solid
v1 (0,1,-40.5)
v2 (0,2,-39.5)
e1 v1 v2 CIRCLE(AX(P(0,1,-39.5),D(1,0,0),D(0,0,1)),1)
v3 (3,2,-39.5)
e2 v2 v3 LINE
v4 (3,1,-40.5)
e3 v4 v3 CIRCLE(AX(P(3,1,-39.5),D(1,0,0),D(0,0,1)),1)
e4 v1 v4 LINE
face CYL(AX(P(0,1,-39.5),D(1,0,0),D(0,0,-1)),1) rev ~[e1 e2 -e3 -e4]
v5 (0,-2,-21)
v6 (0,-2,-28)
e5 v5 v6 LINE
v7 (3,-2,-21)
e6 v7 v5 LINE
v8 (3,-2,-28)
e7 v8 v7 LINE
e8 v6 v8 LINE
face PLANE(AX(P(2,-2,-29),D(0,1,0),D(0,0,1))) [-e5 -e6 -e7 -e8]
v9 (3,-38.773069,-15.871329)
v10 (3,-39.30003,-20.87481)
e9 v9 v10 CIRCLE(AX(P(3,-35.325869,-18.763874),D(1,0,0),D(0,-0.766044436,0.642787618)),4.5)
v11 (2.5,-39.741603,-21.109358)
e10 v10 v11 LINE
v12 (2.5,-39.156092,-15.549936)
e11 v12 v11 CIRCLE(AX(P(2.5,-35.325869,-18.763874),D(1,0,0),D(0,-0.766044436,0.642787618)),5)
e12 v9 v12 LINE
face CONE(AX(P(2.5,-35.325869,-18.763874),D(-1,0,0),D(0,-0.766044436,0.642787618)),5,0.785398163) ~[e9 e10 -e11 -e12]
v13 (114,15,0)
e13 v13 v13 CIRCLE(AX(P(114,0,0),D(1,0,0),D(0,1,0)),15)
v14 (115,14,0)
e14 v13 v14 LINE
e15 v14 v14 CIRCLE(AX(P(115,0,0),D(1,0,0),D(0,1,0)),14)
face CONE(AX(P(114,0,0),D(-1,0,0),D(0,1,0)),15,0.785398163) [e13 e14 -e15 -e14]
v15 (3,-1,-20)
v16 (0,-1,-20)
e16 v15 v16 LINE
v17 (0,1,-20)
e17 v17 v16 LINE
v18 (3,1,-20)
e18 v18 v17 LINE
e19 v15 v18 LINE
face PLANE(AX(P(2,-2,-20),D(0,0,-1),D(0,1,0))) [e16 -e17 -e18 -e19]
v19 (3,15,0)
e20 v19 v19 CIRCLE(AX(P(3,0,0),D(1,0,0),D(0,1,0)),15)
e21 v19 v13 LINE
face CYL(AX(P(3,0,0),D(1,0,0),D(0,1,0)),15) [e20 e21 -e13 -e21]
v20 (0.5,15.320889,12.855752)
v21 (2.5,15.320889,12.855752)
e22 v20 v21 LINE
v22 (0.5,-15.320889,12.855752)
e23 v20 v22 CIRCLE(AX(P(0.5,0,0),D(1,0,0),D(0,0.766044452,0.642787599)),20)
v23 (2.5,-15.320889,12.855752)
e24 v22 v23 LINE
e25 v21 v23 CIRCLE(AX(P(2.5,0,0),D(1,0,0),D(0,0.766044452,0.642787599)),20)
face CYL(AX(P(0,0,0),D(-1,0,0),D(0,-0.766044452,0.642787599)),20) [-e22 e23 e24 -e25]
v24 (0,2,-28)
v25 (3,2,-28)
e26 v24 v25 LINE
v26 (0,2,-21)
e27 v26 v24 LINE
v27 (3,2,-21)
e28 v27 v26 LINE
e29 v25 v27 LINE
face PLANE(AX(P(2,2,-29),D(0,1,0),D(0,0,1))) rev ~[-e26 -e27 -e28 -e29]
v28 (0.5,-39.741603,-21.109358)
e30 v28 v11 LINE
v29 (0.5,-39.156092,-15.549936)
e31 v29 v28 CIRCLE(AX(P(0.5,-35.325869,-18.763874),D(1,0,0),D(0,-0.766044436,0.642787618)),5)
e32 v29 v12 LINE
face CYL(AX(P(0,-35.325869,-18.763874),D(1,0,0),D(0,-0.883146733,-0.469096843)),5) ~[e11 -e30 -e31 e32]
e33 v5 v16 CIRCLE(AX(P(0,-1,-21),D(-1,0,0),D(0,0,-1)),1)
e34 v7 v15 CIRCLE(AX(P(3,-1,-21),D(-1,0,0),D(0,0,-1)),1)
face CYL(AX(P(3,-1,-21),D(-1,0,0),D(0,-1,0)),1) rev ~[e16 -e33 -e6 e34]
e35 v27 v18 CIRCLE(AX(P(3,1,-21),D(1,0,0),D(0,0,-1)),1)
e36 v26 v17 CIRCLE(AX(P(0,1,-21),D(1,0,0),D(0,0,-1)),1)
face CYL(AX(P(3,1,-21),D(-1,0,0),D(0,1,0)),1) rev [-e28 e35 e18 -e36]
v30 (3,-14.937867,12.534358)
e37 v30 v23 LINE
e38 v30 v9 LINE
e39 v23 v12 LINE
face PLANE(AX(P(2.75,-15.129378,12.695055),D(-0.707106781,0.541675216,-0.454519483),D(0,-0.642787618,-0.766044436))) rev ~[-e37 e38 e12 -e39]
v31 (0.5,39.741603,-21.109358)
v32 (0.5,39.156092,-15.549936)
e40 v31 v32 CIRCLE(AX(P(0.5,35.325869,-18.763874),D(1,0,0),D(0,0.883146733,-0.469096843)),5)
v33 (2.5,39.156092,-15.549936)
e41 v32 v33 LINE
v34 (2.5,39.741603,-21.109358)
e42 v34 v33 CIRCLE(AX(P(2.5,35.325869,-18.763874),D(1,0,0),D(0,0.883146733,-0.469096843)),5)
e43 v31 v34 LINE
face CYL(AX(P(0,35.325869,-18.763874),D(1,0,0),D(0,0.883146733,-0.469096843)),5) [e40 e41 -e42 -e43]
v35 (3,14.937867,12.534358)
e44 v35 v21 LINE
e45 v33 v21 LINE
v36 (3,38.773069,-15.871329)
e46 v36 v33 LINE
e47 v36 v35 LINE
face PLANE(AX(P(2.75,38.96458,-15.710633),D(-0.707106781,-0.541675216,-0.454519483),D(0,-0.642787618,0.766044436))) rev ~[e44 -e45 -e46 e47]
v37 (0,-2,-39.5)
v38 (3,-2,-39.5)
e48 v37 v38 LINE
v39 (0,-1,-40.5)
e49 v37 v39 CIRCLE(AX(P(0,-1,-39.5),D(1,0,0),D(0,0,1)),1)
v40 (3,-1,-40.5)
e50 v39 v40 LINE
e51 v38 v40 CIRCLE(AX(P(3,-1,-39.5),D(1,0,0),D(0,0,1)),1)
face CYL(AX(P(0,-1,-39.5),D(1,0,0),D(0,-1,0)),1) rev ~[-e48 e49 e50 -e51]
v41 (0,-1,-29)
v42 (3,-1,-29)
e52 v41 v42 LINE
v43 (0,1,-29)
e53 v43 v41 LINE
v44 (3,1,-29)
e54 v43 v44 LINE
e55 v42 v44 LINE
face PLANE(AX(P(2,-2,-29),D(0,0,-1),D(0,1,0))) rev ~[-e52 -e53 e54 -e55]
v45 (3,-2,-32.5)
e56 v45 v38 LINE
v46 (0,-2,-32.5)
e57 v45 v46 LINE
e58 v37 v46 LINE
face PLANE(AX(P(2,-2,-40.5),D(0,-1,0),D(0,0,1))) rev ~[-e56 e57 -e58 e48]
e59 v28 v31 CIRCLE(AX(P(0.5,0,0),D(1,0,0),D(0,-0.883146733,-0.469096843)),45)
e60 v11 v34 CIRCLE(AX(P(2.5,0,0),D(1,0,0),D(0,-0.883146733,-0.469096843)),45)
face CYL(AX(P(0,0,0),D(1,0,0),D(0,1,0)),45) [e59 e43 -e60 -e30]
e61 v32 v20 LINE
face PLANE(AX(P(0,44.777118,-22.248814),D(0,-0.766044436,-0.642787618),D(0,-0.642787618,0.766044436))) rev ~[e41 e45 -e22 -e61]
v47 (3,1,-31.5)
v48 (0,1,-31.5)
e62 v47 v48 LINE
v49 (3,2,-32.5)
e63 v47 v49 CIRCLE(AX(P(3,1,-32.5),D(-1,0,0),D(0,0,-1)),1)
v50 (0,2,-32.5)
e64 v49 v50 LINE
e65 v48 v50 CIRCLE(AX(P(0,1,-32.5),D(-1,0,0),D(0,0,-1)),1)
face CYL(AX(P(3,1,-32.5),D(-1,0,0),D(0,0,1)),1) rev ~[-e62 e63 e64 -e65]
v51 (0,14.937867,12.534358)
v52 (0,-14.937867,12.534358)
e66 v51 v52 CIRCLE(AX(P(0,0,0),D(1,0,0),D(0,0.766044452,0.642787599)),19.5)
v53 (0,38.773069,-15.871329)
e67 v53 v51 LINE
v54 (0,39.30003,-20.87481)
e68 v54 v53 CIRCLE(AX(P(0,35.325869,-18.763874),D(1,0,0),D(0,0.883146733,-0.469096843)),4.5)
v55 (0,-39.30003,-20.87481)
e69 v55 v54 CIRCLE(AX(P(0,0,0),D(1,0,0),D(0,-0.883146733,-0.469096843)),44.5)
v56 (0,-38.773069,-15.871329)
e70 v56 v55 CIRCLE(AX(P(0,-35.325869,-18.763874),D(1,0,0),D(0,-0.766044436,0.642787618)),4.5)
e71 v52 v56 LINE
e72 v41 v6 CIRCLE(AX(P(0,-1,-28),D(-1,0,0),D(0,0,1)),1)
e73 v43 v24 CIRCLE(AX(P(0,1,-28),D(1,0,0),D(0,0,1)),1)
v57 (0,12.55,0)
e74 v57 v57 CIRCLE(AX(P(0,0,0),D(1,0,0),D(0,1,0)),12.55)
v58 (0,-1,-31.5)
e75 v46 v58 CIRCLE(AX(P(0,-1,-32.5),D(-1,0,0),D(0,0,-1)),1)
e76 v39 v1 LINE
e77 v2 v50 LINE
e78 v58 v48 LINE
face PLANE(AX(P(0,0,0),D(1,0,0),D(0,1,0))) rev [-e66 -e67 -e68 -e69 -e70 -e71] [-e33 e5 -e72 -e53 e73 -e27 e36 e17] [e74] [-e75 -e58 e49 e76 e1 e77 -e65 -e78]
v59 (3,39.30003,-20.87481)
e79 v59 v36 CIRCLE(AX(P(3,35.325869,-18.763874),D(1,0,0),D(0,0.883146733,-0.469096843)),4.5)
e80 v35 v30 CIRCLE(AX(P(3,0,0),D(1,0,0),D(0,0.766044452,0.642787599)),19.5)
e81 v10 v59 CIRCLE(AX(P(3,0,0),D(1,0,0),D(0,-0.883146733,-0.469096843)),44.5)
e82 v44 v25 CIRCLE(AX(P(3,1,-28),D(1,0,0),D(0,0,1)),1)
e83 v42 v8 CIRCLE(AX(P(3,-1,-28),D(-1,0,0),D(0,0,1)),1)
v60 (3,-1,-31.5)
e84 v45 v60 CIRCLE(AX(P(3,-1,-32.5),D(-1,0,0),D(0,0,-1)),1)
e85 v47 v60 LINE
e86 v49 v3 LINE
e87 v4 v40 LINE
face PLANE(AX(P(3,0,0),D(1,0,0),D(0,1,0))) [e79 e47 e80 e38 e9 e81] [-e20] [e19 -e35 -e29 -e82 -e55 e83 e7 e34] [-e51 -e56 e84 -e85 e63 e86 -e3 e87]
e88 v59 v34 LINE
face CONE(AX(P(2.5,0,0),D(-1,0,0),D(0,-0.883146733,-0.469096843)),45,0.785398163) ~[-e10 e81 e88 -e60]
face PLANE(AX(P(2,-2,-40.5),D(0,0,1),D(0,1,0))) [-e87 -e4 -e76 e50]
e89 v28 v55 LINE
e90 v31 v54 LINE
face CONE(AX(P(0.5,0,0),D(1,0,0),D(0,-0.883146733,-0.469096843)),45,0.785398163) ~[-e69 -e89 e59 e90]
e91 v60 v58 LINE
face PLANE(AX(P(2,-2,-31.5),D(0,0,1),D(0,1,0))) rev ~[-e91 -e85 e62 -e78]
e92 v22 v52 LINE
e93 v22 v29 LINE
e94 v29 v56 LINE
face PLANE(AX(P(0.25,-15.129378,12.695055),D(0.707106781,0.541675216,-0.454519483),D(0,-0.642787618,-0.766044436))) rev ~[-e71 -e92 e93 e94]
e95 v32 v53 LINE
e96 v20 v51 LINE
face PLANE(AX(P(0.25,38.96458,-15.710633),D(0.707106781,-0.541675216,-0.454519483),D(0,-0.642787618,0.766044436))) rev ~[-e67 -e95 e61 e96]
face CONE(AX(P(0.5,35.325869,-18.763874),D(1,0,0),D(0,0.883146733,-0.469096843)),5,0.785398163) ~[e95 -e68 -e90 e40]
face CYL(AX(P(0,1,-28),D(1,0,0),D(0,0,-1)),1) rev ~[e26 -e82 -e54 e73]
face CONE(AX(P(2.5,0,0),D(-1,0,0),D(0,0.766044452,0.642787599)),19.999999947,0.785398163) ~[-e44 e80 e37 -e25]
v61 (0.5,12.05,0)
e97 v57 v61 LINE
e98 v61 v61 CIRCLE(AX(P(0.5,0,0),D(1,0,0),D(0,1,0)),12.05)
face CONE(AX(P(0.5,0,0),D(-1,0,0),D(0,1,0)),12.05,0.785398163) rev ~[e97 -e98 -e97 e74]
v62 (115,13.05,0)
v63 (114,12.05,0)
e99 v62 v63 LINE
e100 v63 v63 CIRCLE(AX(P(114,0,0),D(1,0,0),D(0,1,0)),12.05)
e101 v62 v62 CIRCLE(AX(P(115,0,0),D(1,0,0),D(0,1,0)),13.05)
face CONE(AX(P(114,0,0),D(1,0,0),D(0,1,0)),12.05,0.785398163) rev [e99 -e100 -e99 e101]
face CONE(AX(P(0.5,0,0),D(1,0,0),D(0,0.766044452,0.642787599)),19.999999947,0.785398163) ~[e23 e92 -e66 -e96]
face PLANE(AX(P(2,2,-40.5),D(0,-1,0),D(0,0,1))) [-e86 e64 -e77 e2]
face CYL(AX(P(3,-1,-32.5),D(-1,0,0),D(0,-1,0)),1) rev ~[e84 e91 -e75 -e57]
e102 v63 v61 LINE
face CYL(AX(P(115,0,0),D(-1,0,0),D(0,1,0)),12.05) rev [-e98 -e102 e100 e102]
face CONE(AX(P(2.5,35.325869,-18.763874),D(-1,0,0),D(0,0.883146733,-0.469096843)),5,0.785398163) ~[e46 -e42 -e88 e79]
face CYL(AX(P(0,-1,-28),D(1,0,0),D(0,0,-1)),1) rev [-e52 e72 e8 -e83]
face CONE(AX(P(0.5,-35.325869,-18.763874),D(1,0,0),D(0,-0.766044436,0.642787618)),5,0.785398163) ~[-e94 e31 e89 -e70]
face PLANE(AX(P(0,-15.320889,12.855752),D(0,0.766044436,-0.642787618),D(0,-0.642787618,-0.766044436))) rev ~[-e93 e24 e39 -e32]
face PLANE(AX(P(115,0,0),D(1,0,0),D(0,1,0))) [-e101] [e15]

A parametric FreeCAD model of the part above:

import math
import FreeCAD as App
import Part
import Sketcher
Q = App.Units.Quantity


def edges_at(feature, points):
    """Names of the edges that pass closest to the given points."""
    edges = feature.Shape.Edges
    near = lambda p: min(range(len(edges)), key=lambda i: edges[i].distToShape(Part.Vertex(*p))[0])
    return sorted({f"Edge{near(p) + 1}" for p in points})

doc = App.newDocument("Part")
params = doc.addObject("Spreadsheet::Sheet", "Params")
for row, (alias, value) in enumerate([
    ("sketch1_width", "3 mm"),
    ("sketch1_width2", "115 mm"),
    ("sketch1_height", "30 mm"),
    ("sketch1_height2", "32.95 mm"),
    ("revolution_angle", "360 deg"),
    ("sketch2_width", "4 mm"),
    ("sketch2_height", "9 mm"),
    ("pocket1_length", "6 mm"),
    ("sketch3_radius", "50 mm"),
    ("sketch3_radius2", "20 mm"),
    ("pocket2_length", "5 mm"),
    ("fillet_radius", "5 mm"),
    ("fillet2_radius", "1 mm"),
    ("chamfer_size", "0.5 mm"),
    ("chamfer2_size", "1 mm"),
], start=1):
    params.set(f"A{row}", alias)
    params.set(f"B{row}", "=" + value)
    params.setAlias(f"B{row}", alias)

body = doc.addObject("PartDesign::Body", "Body")

# Sketch on XY plane
sketch1 = body.newObject("Sketcher::SketchObject", "Sketch")
sketch1.AttachmentSupport = (doc.getObject("XY_Plane"), [""])
sketch1.MapMode = "FlatFace"
sketch1.addGeometry([
    Part.LineSegment(App.Vector(3, 45, 0), App.Vector(0, 45, 0)),  # 0
    Part.LineSegment(App.Vector(0, 45, 0), App.Vector(0, 12.05, 0)),  # 1
    Part.LineSegment(App.Vector(0, 12.05, 0), App.Vector(115, 12.05, 0)),  # 2
    Part.LineSegment(App.Vector(115, 12.05, 0), App.Vector(115, 15, 0)),  # 3
    Part.LineSegment(App.Vector(115, 15, 0), App.Vector(3, 15, 0)),  # 4
    Part.LineSegment(App.Vector(3, 15, 0), App.Vector(3, 45, 0)),  # 5
], False)
sketch1.addConstraint([
    Sketcher.Constraint("Coincident", 0, 2, 1, 1),
    Sketcher.Constraint("Coincident", 1, 2, 2, 1),
    Sketcher.Constraint("Coincident", 2, 2, 3, 1),
    Sketcher.Constraint("Coincident", 3, 2, 4, 1),
    Sketcher.Constraint("Coincident", 4, 2, 5, 1),
    Sketcher.Constraint("Coincident", 5, 2, 0, 1),
    Sketcher.Constraint("Horizontal", 0),
    Sketcher.Constraint("Vertical", 1),
    Sketcher.Constraint("Horizontal", 2),
    Sketcher.Constraint("Vertical", 3),
    Sketcher.Constraint("Horizontal", 4),
    Sketcher.Constraint("Vertical", 5),
    Sketcher.Constraint("PointOnObject", 0, 2, -2),
    Sketcher.Constraint("DistanceX", 0, 2, 0, 1, 3.0),
    Sketcher.Constraint("DistanceX", 2, 1, 2, 2, 115.0),
    Sketcher.Constraint("DistanceY", 5, 1, 5, 2, 30.0),
    Sketcher.Constraint("DistanceY", -1, 1, 0, 2, 45.0),
    Sketcher.Constraint("DistanceY", 1, 2, 1, 1, 32.95),
])
sketch1.setExpression("Constraints[13]", "Params.sketch1_width")
sketch1.setExpression("Constraints[14]", "Params.sketch1_width2")
sketch1.setExpression("Constraints[15]", "Params.sketch1_height")
sketch1.setExpression("Constraints[17]", "Params.sketch1_height2")
revolution = body.newObject("PartDesign::Revolution", "Revolution")
revolution.Profile = sketch1
revolution.ReferenceAxis = (sketch1, ["H_Axis"])
revolution.setExpression("Angle", "Params.revolution_angle")

# Sketch on YZ plane
sketch2 = body.newObject("Sketcher::SketchObject", "Sketch001")
sketch2.AttachmentSupport = (doc.getObject("YZ_Plane"), [""])
sketch2.MapMode = "FlatFace"
sketch2.AttachmentOffset = App.Placement(App.Vector(0, 0, 2), App.Rotation())
sketch2.addGeometry([
    Part.LineSegment(App.Vector(-2, -31.5, 0), App.Vector(-2, -40.5, 0)),  # 0
    Part.LineSegment(App.Vector(-2, -40.5, 0), App.Vector(2, -40.5, 0)),  # 1
    Part.LineSegment(App.Vector(2, -40.5, 0), App.Vector(2, -31.5, 0)),  # 2
    Part.LineSegment(App.Vector(2, -31.5, 0), App.Vector(-2, -31.5, 0)),  # 3
    Part.LineSegment(App.Vector(-2, -20, 0), App.Vector(-2, -29, 0)),  # 4
    Part.LineSegment(App.Vector(-2, -29, 0), App.Vector(2, -29, 0)),  # 5
    Part.LineSegment(App.Vector(2, -29, 0), App.Vector(2, -20, 0)),  # 6
    Part.LineSegment(App.Vector(2, -20, 0), App.Vector(-2, -20, 0)),  # 7
], False)
sketch2.addConstraint([
    Sketcher.Constraint("Coincident", 0, 2, 1, 1),
    Sketcher.Constraint("Coincident", 1, 2, 2, 1),
    Sketcher.Constraint("Coincident", 2, 2, 3, 1),
    Sketcher.Constraint("Coincident", 3, 2, 0, 1),
    Sketcher.Constraint("Coincident", 4, 2, 5, 1),
    Sketcher.Constraint("Coincident", 5, 2, 6, 1),
    Sketcher.Constraint("Coincident", 6, 2, 7, 1),
    Sketcher.Constraint("Coincident", 7, 2, 4, 1),
    Sketcher.Constraint("Vertical", 0),
    Sketcher.Constraint("Horizontal", 1),
    Sketcher.Constraint("Vertical", 2),
    Sketcher.Constraint("Horizontal", 3),
    Sketcher.Constraint("Vertical", 4),
    Sketcher.Constraint("Horizontal", 5),
    Sketcher.Constraint("Vertical", 6),
    Sketcher.Constraint("Horizontal", 7),
    Sketcher.Constraint("Vertical", 3, 2, 4, 2),
    Sketcher.Constraint("Vertical", 2, 2, 5, 2),
    Sketcher.Constraint("Equal", 2, 4),
    Sketcher.Constraint("DistanceX", 1, 1, 1, 2, 4.0),
    Sketcher.Constraint("DistanceY", 0, 2, 0, 1, 9.0),
    Sketcher.Constraint("DistanceX", 0, 2, -1, 1, 2.0),
    Sketcher.Constraint("DistanceY", 4, 2, -1, 1, 29.0),
    Sketcher.Constraint("DistanceY", 0, 2, -1, 1, 40.5),
])
sketch2.setExpression("Constraints[19]", "Params.sketch2_width")
sketch2.setExpression("Constraints[20]", "Params.sketch2_height")
pocket1 = body.newObject("PartDesign::Pocket", "Pocket")
pocket1.Profile = sketch2
pocket1.setExpression("Length", "Params.pocket1_length")
pocket1.Midplane = True

# Sketch on YZ plane
sketch3 = body.newObject("Sketcher::SketchObject", "Sketch002")
sketch3.AttachmentSupport = (doc.getObject("YZ_Plane"), [""])
sketch3.MapMode = "FlatFace"
sketch3.addGeometry([
    Part.ArcOfCircle(Part.Circle(App.Vector(0, 0, 0), App.Vector(0, 0, 1), 50), math.radians(-26.421821), math.radians(206.421821)),
    Part.LineSegment(App.Vector(44.777118, -22.248814, 0), App.Vector(15.320889, 12.855752, 0)),
    Part.ArcOfCircle(Part.Circle(App.Vector(0, 0, 0), App.Vector(0, 0, 1), 20), math.radians(39.999999), math.radians(140.000001)),
    Part.LineSegment(App.Vector(-15.320889, 12.855752, 0), App.Vector(-44.777118, -22.248814, 0)),
], False)
sketch3.addConstraint([
    Sketcher.Constraint("Coincident", 0, 1, 1, 1),
    Sketcher.Constraint("Tangent", 1, 2, 2, 1),
    Sketcher.Constraint("Tangent", 2, 2, 3, 1),
    Sketcher.Constraint("Coincident", 3, 2, 0, 2),
    Sketcher.Constraint("Coincident", 0, 3, -1, 1),
    Sketcher.Constraint("Coincident", 2, 3, -1, 1),
    Sketcher.Constraint("Horizontal", 1, 2, 2, 2),
    Sketcher.Constraint("Radius", 0, 50.0),
    Sketcher.Constraint("Radius", 2, 20.0),
    Sketcher.Constraint("Angle", 1, Q("130.000001 deg")),
])
sketch3.setExpression("Constraints[7]", "Params.sketch3_radius")
sketch3.setExpression("Constraints[8]", "Params.sketch3_radius2")
pocket2 = body.newObject("PartDesign::Pocket", "Pocket001")
pocket2.Profile = sketch3
pocket2.setExpression("Length", "Params.pocket2_length")
pocket2.Reversed = True
doc.recompute()

fillet = body.newObject("PartDesign::Fillet", "Fillet")
fillet.Base = (pocket2, edges_at(pocket2, [(1.5, 41.232, -18.024), (1.5, -41.232, -18.024)]))
fillet.setExpression("Radius", "Params.fillet_radius")
doc.recompute()

fillet2 = body.newObject("PartDesign::Fillet", "Fillet001")
fillet2.Base = (fillet, edges_at(fillet, [
    (1.5, 2, -20),
    (1.5, -2, -20),
    (1.5, -2, -29),
    (1.5, 2, -29),
    (1.5, 2, -31.5),
    (1.5, -2, -31.5),
    (1.5, -2, -40.5),
    (1.5, 2, -40.5),
]))
fillet2.setExpression("Radius", "Params.fillet2_radius")
doc.recompute()

chamfer = body.newObject("PartDesign::Chamfer", "Chamfer")
chamfer.Base = (fillet2, edges_at(fillet2, [(0, 0, -45), (3, 0, -45), (0, -12.05, 0)]))
chamfer.setExpression("Size", "Params.chamfer_size")
doc.recompute()

chamfer2 = body.newObject("PartDesign::Chamfer", "Chamfer001")
chamfer2.Base = (chamfer, edges_at(chamfer, [(115, -15, 0), (115, -12.05, 0)]))
chamfer2.setExpression("Size", "Params.chamfer2_size")

doc.recompute()
